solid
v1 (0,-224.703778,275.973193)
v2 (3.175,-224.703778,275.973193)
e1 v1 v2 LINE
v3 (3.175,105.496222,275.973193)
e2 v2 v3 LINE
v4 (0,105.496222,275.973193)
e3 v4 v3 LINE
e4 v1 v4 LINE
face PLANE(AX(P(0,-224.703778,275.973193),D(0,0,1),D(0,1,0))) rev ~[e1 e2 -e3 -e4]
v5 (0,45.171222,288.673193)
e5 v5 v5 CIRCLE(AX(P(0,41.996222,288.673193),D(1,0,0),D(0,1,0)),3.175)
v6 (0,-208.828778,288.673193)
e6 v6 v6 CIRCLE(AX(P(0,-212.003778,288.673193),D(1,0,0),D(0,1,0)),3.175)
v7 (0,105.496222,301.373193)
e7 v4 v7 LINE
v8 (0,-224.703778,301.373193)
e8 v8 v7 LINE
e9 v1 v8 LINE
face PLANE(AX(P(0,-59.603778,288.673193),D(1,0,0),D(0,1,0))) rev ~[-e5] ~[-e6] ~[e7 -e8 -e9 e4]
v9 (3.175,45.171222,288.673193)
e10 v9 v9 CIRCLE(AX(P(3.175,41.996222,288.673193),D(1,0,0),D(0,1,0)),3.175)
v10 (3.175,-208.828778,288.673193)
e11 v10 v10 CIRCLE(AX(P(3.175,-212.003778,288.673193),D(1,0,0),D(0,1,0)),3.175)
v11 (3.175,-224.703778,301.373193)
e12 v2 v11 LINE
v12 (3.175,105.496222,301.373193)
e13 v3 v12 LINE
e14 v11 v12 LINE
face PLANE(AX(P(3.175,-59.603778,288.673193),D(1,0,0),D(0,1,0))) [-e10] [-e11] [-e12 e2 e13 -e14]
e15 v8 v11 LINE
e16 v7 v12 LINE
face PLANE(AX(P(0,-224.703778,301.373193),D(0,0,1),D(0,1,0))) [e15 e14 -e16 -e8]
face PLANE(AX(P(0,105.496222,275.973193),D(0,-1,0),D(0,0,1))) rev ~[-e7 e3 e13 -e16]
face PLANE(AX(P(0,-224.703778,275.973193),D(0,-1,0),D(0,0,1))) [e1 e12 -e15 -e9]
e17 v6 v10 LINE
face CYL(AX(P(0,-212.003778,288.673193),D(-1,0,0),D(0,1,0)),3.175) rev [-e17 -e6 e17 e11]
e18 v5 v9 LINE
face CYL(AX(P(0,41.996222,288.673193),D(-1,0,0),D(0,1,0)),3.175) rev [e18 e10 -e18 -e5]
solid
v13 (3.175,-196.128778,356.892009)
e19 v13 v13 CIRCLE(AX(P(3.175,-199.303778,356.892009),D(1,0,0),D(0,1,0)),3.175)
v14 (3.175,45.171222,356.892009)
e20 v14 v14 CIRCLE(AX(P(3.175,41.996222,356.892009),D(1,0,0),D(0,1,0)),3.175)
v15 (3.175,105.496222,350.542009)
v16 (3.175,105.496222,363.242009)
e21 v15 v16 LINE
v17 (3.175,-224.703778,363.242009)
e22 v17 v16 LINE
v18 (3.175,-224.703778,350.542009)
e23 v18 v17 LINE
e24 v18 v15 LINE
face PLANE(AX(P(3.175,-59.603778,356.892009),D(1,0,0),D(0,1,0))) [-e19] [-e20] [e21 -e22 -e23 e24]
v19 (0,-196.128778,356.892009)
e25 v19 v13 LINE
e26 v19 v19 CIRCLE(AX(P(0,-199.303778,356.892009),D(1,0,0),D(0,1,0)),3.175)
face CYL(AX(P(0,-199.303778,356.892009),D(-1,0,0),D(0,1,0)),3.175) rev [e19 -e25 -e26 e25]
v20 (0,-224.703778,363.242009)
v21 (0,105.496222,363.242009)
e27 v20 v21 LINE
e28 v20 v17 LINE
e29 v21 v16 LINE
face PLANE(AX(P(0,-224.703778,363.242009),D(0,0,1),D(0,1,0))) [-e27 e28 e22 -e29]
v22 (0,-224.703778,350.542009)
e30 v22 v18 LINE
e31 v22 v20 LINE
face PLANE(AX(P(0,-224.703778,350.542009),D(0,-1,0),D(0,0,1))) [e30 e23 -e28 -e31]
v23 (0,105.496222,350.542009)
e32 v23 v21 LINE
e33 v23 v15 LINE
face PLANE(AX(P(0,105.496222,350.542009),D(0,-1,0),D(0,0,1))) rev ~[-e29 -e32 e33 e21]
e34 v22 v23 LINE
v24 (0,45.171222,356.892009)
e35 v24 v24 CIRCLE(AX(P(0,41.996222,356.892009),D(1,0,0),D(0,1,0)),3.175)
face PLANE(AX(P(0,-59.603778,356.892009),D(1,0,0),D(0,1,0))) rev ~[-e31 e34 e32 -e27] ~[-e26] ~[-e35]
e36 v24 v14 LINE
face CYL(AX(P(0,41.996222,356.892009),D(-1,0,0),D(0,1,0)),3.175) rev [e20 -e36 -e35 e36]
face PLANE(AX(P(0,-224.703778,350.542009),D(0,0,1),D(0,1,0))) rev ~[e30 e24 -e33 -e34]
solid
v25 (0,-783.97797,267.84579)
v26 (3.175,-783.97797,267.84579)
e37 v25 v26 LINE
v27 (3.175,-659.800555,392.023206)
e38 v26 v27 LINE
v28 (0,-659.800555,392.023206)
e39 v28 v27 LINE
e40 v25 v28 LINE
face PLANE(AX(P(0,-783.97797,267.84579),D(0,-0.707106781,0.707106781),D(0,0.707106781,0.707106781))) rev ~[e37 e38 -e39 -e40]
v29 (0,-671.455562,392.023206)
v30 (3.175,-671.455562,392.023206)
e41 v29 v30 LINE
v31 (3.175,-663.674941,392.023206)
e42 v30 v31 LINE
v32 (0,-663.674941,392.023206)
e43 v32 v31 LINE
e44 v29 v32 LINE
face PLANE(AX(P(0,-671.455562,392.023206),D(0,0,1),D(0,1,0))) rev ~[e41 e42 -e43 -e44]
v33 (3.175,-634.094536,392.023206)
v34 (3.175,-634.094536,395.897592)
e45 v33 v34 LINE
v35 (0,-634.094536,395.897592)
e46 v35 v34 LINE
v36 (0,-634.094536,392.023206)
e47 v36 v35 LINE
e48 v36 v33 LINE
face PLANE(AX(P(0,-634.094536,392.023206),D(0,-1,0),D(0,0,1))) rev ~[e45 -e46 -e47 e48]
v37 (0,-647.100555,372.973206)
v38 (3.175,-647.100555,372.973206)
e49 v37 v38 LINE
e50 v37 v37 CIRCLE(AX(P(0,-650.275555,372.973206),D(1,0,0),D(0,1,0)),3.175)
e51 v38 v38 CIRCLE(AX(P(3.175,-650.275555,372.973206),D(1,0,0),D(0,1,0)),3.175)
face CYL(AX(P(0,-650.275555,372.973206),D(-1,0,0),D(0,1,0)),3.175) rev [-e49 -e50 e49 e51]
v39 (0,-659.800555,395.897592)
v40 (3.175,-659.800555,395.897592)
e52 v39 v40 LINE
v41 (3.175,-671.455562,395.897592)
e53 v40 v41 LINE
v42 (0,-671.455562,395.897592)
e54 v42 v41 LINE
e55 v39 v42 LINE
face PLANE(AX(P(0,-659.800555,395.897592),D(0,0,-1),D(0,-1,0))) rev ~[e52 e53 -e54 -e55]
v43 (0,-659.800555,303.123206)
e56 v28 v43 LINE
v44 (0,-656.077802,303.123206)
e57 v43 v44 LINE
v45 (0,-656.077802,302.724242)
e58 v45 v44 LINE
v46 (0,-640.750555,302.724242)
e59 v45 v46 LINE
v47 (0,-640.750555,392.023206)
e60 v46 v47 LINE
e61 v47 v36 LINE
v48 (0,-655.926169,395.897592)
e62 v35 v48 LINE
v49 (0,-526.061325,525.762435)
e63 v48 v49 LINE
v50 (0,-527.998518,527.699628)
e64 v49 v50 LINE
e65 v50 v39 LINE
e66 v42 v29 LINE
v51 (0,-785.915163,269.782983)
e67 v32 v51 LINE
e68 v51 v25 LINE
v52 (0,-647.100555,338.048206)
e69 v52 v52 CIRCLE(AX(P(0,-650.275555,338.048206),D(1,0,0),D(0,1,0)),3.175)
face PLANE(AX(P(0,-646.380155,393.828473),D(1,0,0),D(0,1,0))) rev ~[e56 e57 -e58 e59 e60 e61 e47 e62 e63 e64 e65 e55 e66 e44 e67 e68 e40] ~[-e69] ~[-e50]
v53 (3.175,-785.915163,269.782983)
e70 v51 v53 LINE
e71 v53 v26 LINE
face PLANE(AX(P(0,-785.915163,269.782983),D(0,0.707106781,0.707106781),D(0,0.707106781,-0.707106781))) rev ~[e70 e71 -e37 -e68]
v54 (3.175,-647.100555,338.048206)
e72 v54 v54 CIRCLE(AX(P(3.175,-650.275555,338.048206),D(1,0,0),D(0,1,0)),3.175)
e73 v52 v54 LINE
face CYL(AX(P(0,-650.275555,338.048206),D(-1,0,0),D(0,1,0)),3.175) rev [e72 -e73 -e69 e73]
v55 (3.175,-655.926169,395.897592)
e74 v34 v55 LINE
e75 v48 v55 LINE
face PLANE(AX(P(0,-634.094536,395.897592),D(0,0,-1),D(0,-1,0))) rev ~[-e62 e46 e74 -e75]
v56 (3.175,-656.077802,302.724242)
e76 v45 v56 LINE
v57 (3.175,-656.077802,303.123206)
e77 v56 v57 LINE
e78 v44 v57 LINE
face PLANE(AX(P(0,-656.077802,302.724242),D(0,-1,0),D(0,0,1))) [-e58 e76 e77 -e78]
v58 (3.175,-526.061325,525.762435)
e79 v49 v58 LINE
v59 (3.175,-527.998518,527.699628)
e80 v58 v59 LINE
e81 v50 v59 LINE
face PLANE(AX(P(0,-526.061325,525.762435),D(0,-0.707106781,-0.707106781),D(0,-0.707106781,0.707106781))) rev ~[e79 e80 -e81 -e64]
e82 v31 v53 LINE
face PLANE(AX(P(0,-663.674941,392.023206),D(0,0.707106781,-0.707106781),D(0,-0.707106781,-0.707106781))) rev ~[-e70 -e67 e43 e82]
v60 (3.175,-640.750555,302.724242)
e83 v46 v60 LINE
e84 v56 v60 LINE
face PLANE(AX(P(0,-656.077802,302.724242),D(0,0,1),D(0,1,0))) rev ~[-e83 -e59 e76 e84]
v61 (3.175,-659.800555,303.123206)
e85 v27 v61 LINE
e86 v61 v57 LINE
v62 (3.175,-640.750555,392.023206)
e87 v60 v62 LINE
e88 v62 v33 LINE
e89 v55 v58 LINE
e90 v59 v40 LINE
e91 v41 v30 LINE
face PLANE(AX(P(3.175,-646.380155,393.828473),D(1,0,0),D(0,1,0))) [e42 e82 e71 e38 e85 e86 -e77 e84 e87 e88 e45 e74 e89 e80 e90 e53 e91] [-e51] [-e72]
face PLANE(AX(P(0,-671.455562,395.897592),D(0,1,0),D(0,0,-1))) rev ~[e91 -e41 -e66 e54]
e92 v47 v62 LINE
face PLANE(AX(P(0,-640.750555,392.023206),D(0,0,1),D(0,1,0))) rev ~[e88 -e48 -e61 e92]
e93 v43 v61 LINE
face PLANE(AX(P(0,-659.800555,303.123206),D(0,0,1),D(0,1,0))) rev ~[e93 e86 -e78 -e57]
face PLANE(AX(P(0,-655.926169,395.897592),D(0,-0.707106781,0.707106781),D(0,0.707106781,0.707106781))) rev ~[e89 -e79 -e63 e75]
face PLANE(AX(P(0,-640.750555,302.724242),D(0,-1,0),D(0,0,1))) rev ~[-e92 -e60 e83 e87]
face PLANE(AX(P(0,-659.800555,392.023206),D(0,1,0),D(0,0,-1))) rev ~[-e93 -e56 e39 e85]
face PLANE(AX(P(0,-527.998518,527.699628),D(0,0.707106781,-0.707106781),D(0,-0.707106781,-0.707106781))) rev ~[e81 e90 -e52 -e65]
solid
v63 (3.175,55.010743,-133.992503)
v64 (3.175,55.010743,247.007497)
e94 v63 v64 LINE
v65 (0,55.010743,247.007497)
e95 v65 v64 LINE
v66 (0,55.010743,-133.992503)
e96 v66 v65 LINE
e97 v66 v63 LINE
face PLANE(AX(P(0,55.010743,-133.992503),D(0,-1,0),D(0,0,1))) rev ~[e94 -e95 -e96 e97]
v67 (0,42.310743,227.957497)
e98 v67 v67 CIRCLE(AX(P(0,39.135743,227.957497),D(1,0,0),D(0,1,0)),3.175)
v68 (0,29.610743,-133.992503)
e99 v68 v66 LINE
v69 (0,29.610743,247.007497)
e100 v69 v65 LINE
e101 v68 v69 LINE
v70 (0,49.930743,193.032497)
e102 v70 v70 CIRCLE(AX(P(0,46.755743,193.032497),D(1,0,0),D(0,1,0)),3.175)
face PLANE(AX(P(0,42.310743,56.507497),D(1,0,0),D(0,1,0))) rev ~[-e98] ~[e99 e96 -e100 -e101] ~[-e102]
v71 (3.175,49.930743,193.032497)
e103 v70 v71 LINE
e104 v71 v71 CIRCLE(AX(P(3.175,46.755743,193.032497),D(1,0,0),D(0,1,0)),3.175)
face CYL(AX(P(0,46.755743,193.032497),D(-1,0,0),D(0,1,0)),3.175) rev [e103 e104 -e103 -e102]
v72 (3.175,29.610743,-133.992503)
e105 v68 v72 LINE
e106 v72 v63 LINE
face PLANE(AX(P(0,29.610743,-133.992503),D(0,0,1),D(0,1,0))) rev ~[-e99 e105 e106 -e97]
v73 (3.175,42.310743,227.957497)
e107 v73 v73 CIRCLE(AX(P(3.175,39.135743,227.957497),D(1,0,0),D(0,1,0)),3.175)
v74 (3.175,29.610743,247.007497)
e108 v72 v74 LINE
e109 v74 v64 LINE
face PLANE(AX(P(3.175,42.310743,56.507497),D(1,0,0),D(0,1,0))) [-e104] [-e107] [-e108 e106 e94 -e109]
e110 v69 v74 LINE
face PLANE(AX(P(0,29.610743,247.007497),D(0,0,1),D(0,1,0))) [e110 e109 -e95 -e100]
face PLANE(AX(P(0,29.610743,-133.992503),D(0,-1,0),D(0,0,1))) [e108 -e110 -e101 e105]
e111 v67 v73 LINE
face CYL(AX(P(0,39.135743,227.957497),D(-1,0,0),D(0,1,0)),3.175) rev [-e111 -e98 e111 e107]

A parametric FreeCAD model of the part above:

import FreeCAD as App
import Part
import Sketcher

V = App.Vector
Q = App.Units.Quantity

doc = App.newDocument("Part")
body = doc.addObject("PartDesign::Body", "Body")

sketch1 = doc.addObject("Sketcher::SketchObject", "Sketch")
body.addObject(sketch1)
sketch1.AttachmentSupport = (doc.YZ_Plane, [""])
sketch1.MapMode = "FlatFace"
sketch1.addGeometry(Part.LineSegment(V(29.6, 247, 0), V(29.6, -134, 0)), False)
sketch1.addGeometry(Part.LineSegment(V(29.6, -134, 0), V(55, -134, 0)), False)
sketch1.addGeometry(Part.LineSegment(V(55, -134, 0), V(55, 247, 0)), False)
sketch1.addGeometry(Part.LineSegment(V(55, 247, 0), V(29.6, 247, 0)), False)
sketch1.addGeometry(Part.Circle(V(46.8, 193, 0), V(0, 0, 1), 3.2), False)
sketch1.addGeometry(Part.Circle(V(39.1, 228, 0), V(0, 0, 1), 3.2), False)
sketch1.addConstraint(Sketcher.Constraint("Coincident", 0, 2, 1, 1))
sketch1.addConstraint(Sketcher.Constraint("Coincident", 1, 2, 2, 1))
sketch1.addConstraint(Sketcher.Constraint("Coincident", 2, 2, 3, 1))
sketch1.addConstraint(Sketcher.Constraint("Coincident", 3, 2, 0, 1))
sketch1.addConstraint(Sketcher.Constraint("Vertical", 0))
sketch1.addConstraint(Sketcher.Constraint("Horizontal", 1))
sketch1.addConstraint(Sketcher.Constraint("Vertical", 2))
sketch1.addConstraint(Sketcher.Constraint("Horizontal", 3))
sketch1.addConstraint(Sketcher.Constraint("Equal", 4, 5))
sketch1.addConstraint(Sketcher.Constraint("Diameter", 4, Q("0.25 in")))
sketch1.addConstraint(Sketcher.Constraint("DistanceX", 1, 1, 1, 2, Q("1 in")))
sketch1.addConstraint(Sketcher.Constraint("DistanceY", 0, 2, 0, 1, Q("15 in")))
sketch1.addConstraint(Sketcher.Constraint("DistanceX", 5, 3, 4, 3, Q("0.3 in")))
sketch1.addConstraint(Sketcher.Constraint("DistanceY", 0, 2, 5, 3, Q("14.25 in")))
sketch1.addConstraint(Sketcher.Constraint("DistanceY", 4, 3, 5, 3, Q("1.375 in")))
sketch1.addConstraint(Sketcher.Constraint("DistanceX", 0, 2, 4, 3, Q("0.675 in")))
sketch1.addConstraint(Sketcher.Constraint("DistanceX", -1, 1, 4, 3, Q("46.755743 mm")))
sketch1.addConstraint(Sketcher.Constraint("DistanceY", -1, 1, 4, 3, Q("193.032497 mm")))
pad1 = doc.addObject("PartDesign::Pad", "Pad")
body.addObject(pad1)
pad1.Profile = sketch1
pad1.Length = Q("0.125 in")
body2 = doc.addObject("PartDesign::Body", "Body001")

sketch2 = doc.addObject("Sketcher::SketchObject", "Sketch001")
body2.addObject(sketch2)
sketch2.AttachmentSupport = (doc.getObject("YZ_Plane001"), [""])
sketch2.MapMode = "FlatFace"
sketch2.addGeometry(Part.LineSegment(V(-224.7, 301.4, 0), V(-224.7, 276, 0)), False)
sketch2.addGeometry(Part.LineSegment(V(-224.7, 276, 0), V(105.5, 276, 0)), False)
sketch2.addGeometry(Part.LineSegment(V(105.5, 276, 0), V(105.5, 301.4, 0)), False)
sketch2.addGeometry(Part.LineSegment(V(105.5, 301.4, 0), V(-224.7, 301.4, 0)), False)
sketch2.addGeometry(Part.Circle(V(-212, 288.7, 0), V(0, 0, 1), 3.2), False)
sketch2.addGeometry(Part.Circle(V(42, 288.7, 0), V(0, 0, 1), 3.2), False)
sketch2.addConstraint(Sketcher.Constraint("Coincident", 0, 2, 1, 1))
sketch2.addConstraint(Sketcher.Constraint("Coincident", 1, 2, 2, 1))
sketch2.addConstraint(Sketcher.Constraint("Coincident", 2, 2, 3, 1))
sketch2.addConstraint(Sketcher.Constraint("Coincident", 3, 2, 0, 1))
sketch2.addConstraint(Sketcher.Constraint("Vertical", 0))
sketch2.addConstraint(Sketcher.Constraint("Horizontal", 1))
sketch2.addConstraint(Sketcher.Constraint("Vertical", 2))
sketch2.addConstraint(Sketcher.Constraint("Horizontal", 3))
sketch2.addConstraint(Sketcher.Constraint("Equal", 4, 5))
sketch2.addConstraint(Sketcher.Constraint("Horizontal", 4, 3, 5, 3))
sketch2.addConstraint(Sketcher.Constraint("Diameter", 4, Q("0.25 in")))
sketch2.addConstraint(Sketcher.Constraint("DistanceX", 1, 1, 1, 2, Q("13 in")))
sketch2.addConstraint(Sketcher.Constraint("DistanceY", 0, 2, 0, 1, Q("1 in")))
sketch2.addConstraint(Sketcher.Constraint("DistanceX", 4, 3, 5, 3, Q("10 in")))
sketch2.addConstraint(Sketcher.Constraint("DistanceX", 0, 2, 4, 3, Q("0.5 in")))
sketch2.addConstraint(Sketcher.Constraint("DistanceY", 0, 2, 4, 3, Q("0.5 in")))
sketch2.addConstraint(Sketcher.Constraint("DistanceX", 4, 3, -1, 1, Q("212.003778 mm")))
sketch2.addConstraint(Sketcher.Constraint("DistanceY", -1, 1, 4, 3, Q("288.673193 mm")))
pad2 = doc.addObject("PartDesign::Pad", "Pad001")
body2.addObject(pad2)
pad2.Profile = sketch2
pad2.Length = Q("0.125 in")
body3 = doc.addObject("PartDesign::Body", "Body002")

sketch3 = doc.addObject("Sketcher::SketchObject", "Sketch002")
body3.addObject(sketch3)
sketch3.AttachmentSupport = (doc.getObject("YZ_Plane002"), [""])
sketch3.MapMode = "FlatFace"
sketch3.addGeometry(Part.LineSegment(V(-224.7, 363.2, 0), V(-224.7, 350.5, 0)), False)
sketch3.addGeometry(Part.LineSegment(V(-224.7, 350.5, 0), V(105.5, 350.5, 0)), False)
sketch3.addGeometry(Part.LineSegment(V(105.5, 350.5, 0), V(105.5, 363.2, 0)), False)
sketch3.addGeometry(Part.LineSegment(V(105.5, 363.2, 0), V(-224.7, 363.2, 0)), False)
sketch3.addGeometry(Part.Circle(V(-199.3, 356.9, 0), V(0, 0, 1), 3.2), False)
sketch3.addGeometry(Part.Circle(V(42, 356.9, 0), V(0, 0, 1), 3.2), False)
sketch3.addConstraint(Sketcher.Constraint("Coincident", 0, 2, 1, 1))
sketch3.addConstraint(Sketcher.Constraint("Coincident", 1, 2, 2, 1))
sketch3.addConstraint(Sketcher.Constraint("Coincident", 2, 2, 3, 1))
sketch3.addConstraint(Sketcher.Constraint("Coincident", 3, 2, 0, 1))
sketch3.addConstraint(Sketcher.Constraint("Vertical", 0))
sketch3.addConstraint(Sketcher.Constraint("Horizontal", 1))
sketch3.addConstraint(Sketcher.Constraint("Vertical", 2))
sketch3.addConstraint(Sketcher.Constraint("Horizontal", 3))
sketch3.addConstraint(Sketcher.Constraint("Equal", 4, 5))
sketch3.addConstraint(Sketcher.Constraint("Horizontal", 4, 3, 5, 3))
sketch3.addConstraint(Sketcher.Constraint("Diameter", 4, Q("0.25 in")))
sketch3.addConstraint(Sketcher.Constraint("DistanceX", 1, 1, 1, 2, Q("13 in")))
sketch3.addConstraint(Sketcher.Constraint("DistanceY", 0, 2, 0, 1, Q("0.5 in")))
sketch3.addConstraint(Sketcher.Constraint("DistanceX", 0, 2, 4, 3, Q("1 in")))
sketch3.addConstraint(Sketcher.Constraint("DistanceX", 4, 3, 5, 3, Q("9.5 in")))
sketch3.addConstraint(Sketcher.Constraint("DistanceY", 0, 2, 4, 3, Q("0.25 in")))
sketch3.addConstraint(Sketcher.Constraint("DistanceX", 4, 3, -1, 1, Q("199.303778 mm")))
sketch3.addConstraint(Sketcher.Constraint("DistanceY", -1, 1, 4, 3, Q("356.892009 mm")))
pad3 = doc.addObject("PartDesign::Pad", "Pad002")
body3.addObject(pad3)
pad3.Profile = sketch3
pad3.Length = Q("0.125 in")
body4 = doc.addObject("PartDesign::Body", "Body003")

sketch4 = doc.addObject("Sketcher::SketchObject", "Sketch003")
body4.addObject(sketch4)
sketch4.AttachmentSupport = (doc.getObject("YZ_Plane003"), [""])
sketch4.MapMode = "FlatFace"
sketch4.addGeometry(Part.LineSegment(V(-634.09, 395.9, 0), V(-655.93, 395.9, 0)), False)
sketch4.addGeometry(Part.LineSegment(V(-655.93, 395.9, 0), V(-526.06, 525.76, 0)), False)
sketch4.addGeometry(Part.LineSegment(V(-526.06, 525.76, 0), V(-528, 527.7, 0)), False)
sketch4.addGeometry(Part.LineSegment(V(-528, 527.7, 0), V(-659.8, 395.9, 0)), False)
sketch4.addGeometry(Part.LineSegment(V(-659.8, 395.9, 0), V(-671.46, 395.9, 0)), False)
sketch4.addGeometry(Part.LineSegment(V(-671.46, 395.9, 0), V(-671.46, 392.02, 0)), False)
sketch4.addGeometry(Part.LineSegment(V(-671.46, 392.02, 0), V(-663.67, 392.02, 0)), False)
sketch4.addGeometry(Part.LineSegment(V(-663.67, 392.02, 0), V(-785.92, 269.78, 0)), False)
sketch4.addGeometry(Part.LineSegment(V(-785.92, 269.78, 0), V(-783.98, 267.85, 0)), False)
sketch4.addGeometry(Part.LineSegment(V(-783.98, 267.85, 0), V(-659.8, 392.02, 0)), False)
sketch4.addGeometry(Part.LineSegment(V(-659.8, 392.02, 0), V(-659.8, 303.12, 0)), False)
sketch4.addGeometry(Part.LineSegment(V(-659.8, 303.12, 0), V(-656.08, 303.12, 0)), False)
sketch4.addGeometry(Part.LineSegment(V(-656.08, 303.12, 0), V(-656.08, 302.72, 0)), False)
sketch4.addGeometry(Part.LineSegment(V(-656.08, 302.72, 0), V(-640.75, 302.72, 0)), False)
sketch4.addGeometry(Part.LineSegment(V(-640.75, 302.72, 0), V(-640.75, 392.02, 0)), False)
sketch4.addGeometry(Part.LineSegment(V(-640.75, 392.02, 0), V(-634.09, 392.02, 0)), False)
sketch4.addGeometry(Part.LineSegment(V(-634.09, 392.02, 0), V(-634.09, 395.9, 0)), False)
sketch4.addGeometry(Part.Circle(V(-650.28, 338.05, 0), V(0, 0, 1), 3.17), False)
sketch4.addGeometry(Part.Circle(V(-650.28, 372.97, 0), V(0, 0, 1), 3.17), False)
sketch4.addConstraint(Sketcher.Constraint("Coincident", 0, 2, 1, 1))
sketch4.addConstraint(Sketcher.Constraint("Coincident", 1, 2, 2, 1))
sketch4.addConstraint(Sketcher.Constraint("Coincident", 2, 2, 3, 1))
sketch4.addConstraint(Sketcher.Constraint("Coincident", 3, 2, 4, 1))
sketch4.addConstraint(Sketcher.Constraint("Coincident", 4, 2, 5, 1))
sketch4.addConstraint(Sketcher.Constraint("Coincident", 5, 2, 6, 1))
sketch4.addConstraint(Sketcher.Constraint("Coincident", 6, 2, 7, 1))
sketch4.addConstraint(Sketcher.Constraint("Coincident", 7, 2, 8, 1))
sketch4.addConstraint(Sketcher.Constraint("Coincident", 8, 2, 9, 1))
sketch4.addConstraint(Sketcher.Constraint("Coincident", 9, 2, 10, 1))
sketch4.addConstraint(Sketcher.Constraint("Coincident", 10, 2, 11, 1))
sketch4.addConstraint(Sketcher.Constraint("Coincident", 11, 2, 12, 1))
sketch4.addConstraint(Sketcher.Constraint("Coincident", 12, 2, 13, 1))
sketch4.addConstraint(Sketcher.Constraint("Coincident", 13, 2, 14, 1))
sketch4.addConstraint(Sketcher.Constraint("Coincident", 14, 2, 15, 1))
sketch4.addConstraint(Sketcher.Constraint("Coincident", 15, 2, 16, 1))
sketch4.addConstraint(Sketcher.Constraint("Coincident", 16, 2, 0, 1))
sketch4.addConstraint(Sketcher.Constraint("Horizontal", 0))
sketch4.addConstraint(Sketcher.Constraint("Horizontal", 4))
sketch4.addConstraint(Sketcher.Constraint("Vertical", 5))
sketch4.addConstraint(Sketcher.Constraint("Horizontal", 6))
sketch4.addConstraint(Sketcher.Constraint("Vertical", 10))
sketch4.addConstraint(Sketcher.Constraint("Horizontal", 11))
sketch4.addConstraint(Sketcher.Constraint("Vertical", 12))
sketch4.addConstraint(Sketcher.Constraint("Horizontal", 13))
sketch4.addConstraint(Sketcher.Constraint("Vertical", 14))
sketch4.addConstraint(Sketcher.Constraint("Horizontal", 15))
sketch4.addConstraint(Sketcher.Constraint("Vertical", 16))
sketch4.addConstraint(Sketcher.Constraint("Equal", 17, 18))
sketch4.addConstraint(Sketcher.Constraint("Perpendicular", 1, 2))
sketch4.addConstraint(Sketcher.Constraint("Perpendicular", 2, 3))
sketch4.addConstraint(Sketcher.Constraint("Parallel", 3, 7))
sketch4.addConstraint(Sketcher.Constraint("Perpendicular", 7, 8))
sketch4.addConstraint(Sketcher.Constraint("Perpendicular", 8, 9))
sketch4.addConstraint(Sketcher.Constraint("Horizontal", 0, 2, 3, 2))
sketch4.addConstraint(Sketcher.Constraint("Horizontal", 6, 2, 9, 2))
sketch4.addConstraint(Sketcher.Constraint("Horizontal", 9, 2, 14, 2))
sketch4.addConstraint(Sketcher.Constraint("Vertical", 17, 3, 18, 3))
sketch4.addConstraint(Sketcher.Constraint("Vertical", 3, 2, 9, 2))
sketch4.addConstraint(Sketcher.Constraint("Equal", 2, 8))
sketch4.addConstraint(Sketcher.Constraint("Diameter", 17, Q("0.25 in")))
sketch4.addConstraint(Sketcher.Constraint("DistanceY", 10, 2, 10, 1, Q("3.5 in")))
sketch4.addConstraint(Sketcher.Constraint("Angle", 1, Q("45 deg")))
sketch4.addConstraint(Sketcher.Constraint("DistanceY", 18, 3, 5, 2, Q("0.75 in")))
sketch4.addConstraint(Sketcher.Constraint("DistanceX", 10, 2, 13, 2, Q("0.75 in")))
sketch4.addConstraint(Sketcher.Constraint("DistanceY", 17, 3, 18, 3, Q("1.375 in")))
sketch4.addConstraint(Sketcher.Constraint("DistanceX", 3, 2, 18, 3, Q("0.375 in")))
sketch4.addConstraint(Sketcher.Constraint("DistanceX", 6, 2, 11, 2, Q("0.2990999 in")))
sketch4.addConstraint(Sketcher.Constraint("DistanceX", 6, 1, 6, 2, Q("7.780622 mm")))
sketch4.addConstraint(Sketcher.Constraint("DistanceX", 15, 1, 15, 2, Q("6.656018 mm")))
sketch4.addConstraint(Sketcher.Constraint("DistanceX", 7, 2, 5, 2, Q("114.459601 mm")))
sketch4.addConstraint(Sketcher.Constraint("DistanceY", 8, 2, 4, 2, Q("128.051801 mm")))
sketch4.addConstraint(Sketcher.Constraint("DistanceX", 0, 2, 0, 1, Q("21.831633 mm")))
sketch4.addConstraint(Sketcher.Constraint("DistanceY", 12, 2, 12, 1, Q("0.398964 mm")))
sketch4.addConstraint(Sketcher.Constraint("DistanceX", 0, 2, -1, 1, Q("655.926169 mm")))
sketch4.addConstraint(Sketcher.Constraint("DistanceY", -1, 1, 0, 2, Q("395.897592 mm")))
sketch4.addConstraint(Sketcher.Constraint("DistanceY", -1, 1, 2, 2, Q("527.699628 mm")))
pad4 = doc.addObject("PartDesign::Pad", "Pad003")
body4.addObject(pad4)
pad4.Profile = sketch4
pad4.Length = Q("0.125 in")

doc.recompute()
